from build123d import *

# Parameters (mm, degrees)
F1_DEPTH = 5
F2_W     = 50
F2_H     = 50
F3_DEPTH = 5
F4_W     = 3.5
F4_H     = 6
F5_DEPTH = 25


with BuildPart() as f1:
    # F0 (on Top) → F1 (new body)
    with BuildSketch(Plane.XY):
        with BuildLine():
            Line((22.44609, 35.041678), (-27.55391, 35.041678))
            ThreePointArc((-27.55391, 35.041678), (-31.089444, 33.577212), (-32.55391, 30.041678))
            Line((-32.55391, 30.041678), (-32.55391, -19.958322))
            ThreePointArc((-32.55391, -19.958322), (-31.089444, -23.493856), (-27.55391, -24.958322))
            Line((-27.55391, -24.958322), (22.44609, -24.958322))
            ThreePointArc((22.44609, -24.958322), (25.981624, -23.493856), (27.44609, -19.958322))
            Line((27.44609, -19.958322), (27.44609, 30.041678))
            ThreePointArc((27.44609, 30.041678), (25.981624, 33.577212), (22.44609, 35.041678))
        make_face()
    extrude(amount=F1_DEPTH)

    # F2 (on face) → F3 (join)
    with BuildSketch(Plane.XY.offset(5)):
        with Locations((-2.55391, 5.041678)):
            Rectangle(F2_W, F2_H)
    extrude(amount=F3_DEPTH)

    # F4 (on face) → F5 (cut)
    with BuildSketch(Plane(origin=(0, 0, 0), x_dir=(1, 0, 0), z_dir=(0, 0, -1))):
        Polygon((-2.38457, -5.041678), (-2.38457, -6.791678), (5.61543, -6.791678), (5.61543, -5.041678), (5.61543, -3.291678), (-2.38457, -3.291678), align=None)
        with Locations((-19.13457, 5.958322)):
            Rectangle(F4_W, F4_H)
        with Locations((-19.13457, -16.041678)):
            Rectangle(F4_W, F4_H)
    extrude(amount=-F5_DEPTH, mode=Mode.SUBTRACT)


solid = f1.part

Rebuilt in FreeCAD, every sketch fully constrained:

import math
import FreeCAD as App
import Part
import Sketcher


def add_polygon(sketch, points):
    """Adds a closed chain of lines whose ends are joined by coincident constraints."""
    first, n = sketch.GeometryCount, len(points)
    for a, b in zip(points, points[1:] + points[:1]):
        sketch.addGeometry(Part.LineSegment(App.Vector(*a, 0), App.Vector(*b, 0)), False)
    for i in range(n):
        sketch.addConstraint(Sketcher.Constraint("Coincident", first + i, 2, first + (i + 1) % n, 1))

doc = App.newDocument("Part")
params = doc.addObject("Spreadsheet::Sheet", "Params")
for row, (alias, value) in enumerate([
    ("sketch1_radius", "5 mm"),
    ("sketch1_width", "50 mm"),
    ("pad1_length", "5 mm"),
    ("sketch2_width", "50 mm"),
    ("pad2_length", "5 mm"),
    ("sketch3_width", "8 mm"),
    ("sketch3_height", "6 mm"),
    ("sketch3_width2", "3.5 mm"),
    ("pocket1_length", "25 mm"),
], start=1):
    params.set(f"A{row}", alias)
    params.set(f"B{row}", "=" + value)
    params.setAlias(f"B{row}", alias)

body = doc.addObject("PartDesign::Body", "Body")

sketch1 = doc.addObject("Sketcher::SketchObject", "Sketch")
body.addObject(sketch1)
sketch1.AttachmentSupport = (doc.XY_Plane, [""])
sketch1.MapMode = "FlatFace"
sketch1.addGeometry(Part.LineSegment(App.Vector(22.4, 35, 0), App.Vector(-27.6, 35, 0)), False)
sketch1.addGeometry(Part.ArcOfCircle(Part.Circle(App.Vector(-27.6, 30, 0), App.Vector(0, 0, 1), 5), math.radians(90), math.radians(180)), False)
sketch1.addGeometry(Part.LineSegment(App.Vector(-32.6, 30, 0), App.Vector(-32.6, -20, 0)), False)
sketch1.addGeometry(Part.ArcOfCircle(Part.Circle(App.Vector(-27.6, -20, 0), App.Vector(0, 0, 1), 5), math.radians(180), math.radians(270)), False)
sketch1.addGeometry(Part.LineSegment(App.Vector(-27.6, -25, 0), App.Vector(22.4, -25, 0)), False)
sketch1.addGeometry(Part.ArcOfCircle(Part.Circle(App.Vector(22.4, -20, 0), App.Vector(0, 0, 1), 5), math.radians(-90), math.radians(0)), False)
sketch1.addGeometry(Part.LineSegment(App.Vector(27.4, -20, 0), App.Vector(27.4, 30, 0)), False)
sketch1.addGeometry(Part.ArcOfCircle(Part.Circle(App.Vector(22.4, 30, 0), App.Vector(0, 0, 1), 5), math.radians(0), math.radians(90)), False)
sketch1.addConstraint(Sketcher.Constraint("Tangent", 0, 2, 1, 1))
sketch1.addConstraint(Sketcher.Constraint("Tangent", 1, 2, 2, 1))
sketch1.addConstraint(Sketcher.Constraint("Tangent", 2, 2, 3, 1))
sketch1.addConstraint(Sketcher.Constraint("Tangent", 3, 2, 4, 1))
sketch1.addConstraint(Sketcher.Constraint("Tangent", 4, 2, 5, 1))
sketch1.addConstraint(Sketcher.Constraint("Tangent", 5, 2, 6, 1))
sketch1.addConstraint(Sketcher.Constraint("Tangent", 6, 2, 7, 1))
sketch1.addConstraint(Sketcher.Constraint("Tangent", 7, 2, 0, 1))
sketch1.addConstraint(Sketcher.Constraint("Horizontal", 0))
sketch1.addConstraint(Sketcher.Constraint("Vertical", 2))
sketch1.addConstraint(Sketcher.Constraint("Horizontal", 4))
sketch1.addConstraint(Sketcher.Constraint("Vertical", 6))
sketch1.addConstraint(Sketcher.Constraint("Equal", 1, 3))
sketch1.addConstraint(Sketcher.Constraint("Equal", 3, 5))
sketch1.addConstraint(Sketcher.Constraint("Equal", 5, 7))
sketch1.addConstraint(Sketcher.Constraint("Equal", 4, 2))
sketch1.addConstraint(Sketcher.Constraint("Radius", 1, 5.0))
sketch1.addConstraint(Sketcher.Constraint("DistanceX", 0, 2, 0, 1, 50.0))
sketch1.addConstraint(Sketcher.Constraint("DistanceX", 1, 3, -1, 1, 27.55391))
sketch1.addConstraint(Sketcher.Constraint("DistanceY", -1, 1, 1, 3, 30.041678))
sketch1.setExpression("Constraints[16]", "Params.sketch1_radius")
sketch1.setExpression("Constraints[17]", "Params.sketch1_width")
pad1 = doc.addObject("PartDesign::Pad", "Pad")
body.addObject(pad1)
pad1.Profile = sketch1
pad1.setExpression("Length", "Params.pad1_length")

sketch2 = doc.addObject("Sketcher::SketchObject", "Sketch001")
body.addObject(sketch2)
sketch2.AttachmentSupport = (doc.XY_Plane, [""])
sketch2.MapMode = "FlatFace"
sketch2.AttachmentOffset = App.Placement(App.Vector(0, 0, 5), App.Rotation())
add_polygon(sketch2, [(-28, 30), (-28, -20), (22, -20), (22, 30)])
sketch2.addConstraint(Sketcher.Constraint("Vertical", 0))
sketch2.addConstraint(Sketcher.Constraint("Horizontal", 1))
sketch2.addConstraint(Sketcher.Constraint("Vertical", 2))
sketch2.addConstraint(Sketcher.Constraint("Horizontal", 3))
sketch2.addConstraint(Sketcher.Constraint("Equal", 3, 0))
sketch2.addConstraint(Sketcher.Constraint("DistanceX", 1, 1, 1, 2, 50.0))
sketch2.addConstraint(Sketcher.Constraint("DistanceX", 0, 2, -1, 1, 27.55391))
sketch2.addConstraint(Sketcher.Constraint("DistanceY", 0, 2, -1, 1, 19.958322))
sketch2.setExpression("Constraints[9]", "Params.sketch2_width")
pad2 = doc.addObject("PartDesign::Pad", "Pad001")
body.addObject(pad2)
pad2.Profile = sketch2
pad2.setExpression("Length", "Params.pad2_length")

sketch3 = doc.addObject("Sketcher::SketchObject", "Sketch002")
body.addObject(sketch3)
sketch3.AttachmentSupport = (doc.XY_Plane, [""])
sketch3.MapMode = "FlatFace"
add_polygon(sketch3, [(-2.4, 6.8), (5.6, 6.8), (5.6, 3.3), (-2.4, 3.3)])
add_polygon(sketch3, [(-20.9, -9), (-20.9, -3), (-17.4, -3), (-17.4, -9)])
add_polygon(sketch3, [(-20.9, 13), (-20.9, 19), (-17.4, 19), (-17.4, 13)])
sketch3.addConstraint(Sketcher.Constraint("Horizontal", 0))
sketch3.addConstraint(Sketcher.Constraint("Vertical", 1))
sketch3.addConstraint(Sketcher.Constraint("Horizontal", 2))
sketch3.addConstraint(Sketcher.Constraint("Vertical", 3))
sketch3.addConstraint(Sketcher.Constraint("Vertical", 4))
sketch3.addConstraint(Sketcher.Constraint("Horizontal", 5))
sketch3.addConstraint(Sketcher.Constraint("Vertical", 6))
sketch3.addConstraint(Sketcher.Constraint("Horizontal", 7))
sketch3.addConstraint(Sketcher.Constraint("Vertical", 8))
sketch3.addConstraint(Sketcher.Constraint("Horizontal", 9))
sketch3.addConstraint(Sketcher.Constraint("Vertical", 10))
sketch3.addConstraint(Sketcher.Constraint("Horizontal", 11))
sketch3.addConstraint(Sketcher.Constraint("Vertical", 7, 2, 8, 2))
sketch3.addConstraint(Sketcher.Constraint("Vertical", 6, 2, 9, 2))
sketch3.addConstraint(Sketcher.Constraint("Equal", 11, 1))
sketch3.addConstraint(Sketcher.Constraint("Equal", 6, 8))
sketch3.addConstraint(Sketcher.Constraint("DistanceX", 0, 1, 0, 2, 8.0))
sketch3.addConstraint(Sketcher.Constraint("DistanceY", 4, 1, 4, 2, 6.0))
sketch3.addConstraint(Sketcher.Constraint("DistanceX", 5, 1, 5, 2, 3.5))
sketch3.addConstraint(Sketcher.Constraint("DistanceX", 5, 2, 2, 2, 15.0))
sketch3.addConstraint(Sketcher.Constraint("DistanceY", 4, 2, 8, 2, 22.0))
sketch3.addConstraint(Sketcher.Constraint("DistanceY", 4, 2, 2, 2, 6.25))
sketch3.addConstraint(Sketcher.Constraint("DistanceX", -1, 1, 0, 2, 5.61543))
sketch3.addConstraint(Sketcher.Constraint("DistanceY", -1, 1, 1, 2, 3.291678))
sketch3.setExpression("Constraints[28]", "Params.sketch3_width")
sketch3.setExpression("Constraints[29]", "Params.sketch3_height")
sketch3.setExpression("Constraints[30]", "Params.sketch3_width2")
pocket1 = doc.addObject("PartDesign::Pocket", "Pocket")
body.addObject(pocket1)
pocket1.Profile = sketch3
pocket1.setExpression("Length", "Params.pocket1_length")
pocket1.Reversed = True

doc.recompute()
